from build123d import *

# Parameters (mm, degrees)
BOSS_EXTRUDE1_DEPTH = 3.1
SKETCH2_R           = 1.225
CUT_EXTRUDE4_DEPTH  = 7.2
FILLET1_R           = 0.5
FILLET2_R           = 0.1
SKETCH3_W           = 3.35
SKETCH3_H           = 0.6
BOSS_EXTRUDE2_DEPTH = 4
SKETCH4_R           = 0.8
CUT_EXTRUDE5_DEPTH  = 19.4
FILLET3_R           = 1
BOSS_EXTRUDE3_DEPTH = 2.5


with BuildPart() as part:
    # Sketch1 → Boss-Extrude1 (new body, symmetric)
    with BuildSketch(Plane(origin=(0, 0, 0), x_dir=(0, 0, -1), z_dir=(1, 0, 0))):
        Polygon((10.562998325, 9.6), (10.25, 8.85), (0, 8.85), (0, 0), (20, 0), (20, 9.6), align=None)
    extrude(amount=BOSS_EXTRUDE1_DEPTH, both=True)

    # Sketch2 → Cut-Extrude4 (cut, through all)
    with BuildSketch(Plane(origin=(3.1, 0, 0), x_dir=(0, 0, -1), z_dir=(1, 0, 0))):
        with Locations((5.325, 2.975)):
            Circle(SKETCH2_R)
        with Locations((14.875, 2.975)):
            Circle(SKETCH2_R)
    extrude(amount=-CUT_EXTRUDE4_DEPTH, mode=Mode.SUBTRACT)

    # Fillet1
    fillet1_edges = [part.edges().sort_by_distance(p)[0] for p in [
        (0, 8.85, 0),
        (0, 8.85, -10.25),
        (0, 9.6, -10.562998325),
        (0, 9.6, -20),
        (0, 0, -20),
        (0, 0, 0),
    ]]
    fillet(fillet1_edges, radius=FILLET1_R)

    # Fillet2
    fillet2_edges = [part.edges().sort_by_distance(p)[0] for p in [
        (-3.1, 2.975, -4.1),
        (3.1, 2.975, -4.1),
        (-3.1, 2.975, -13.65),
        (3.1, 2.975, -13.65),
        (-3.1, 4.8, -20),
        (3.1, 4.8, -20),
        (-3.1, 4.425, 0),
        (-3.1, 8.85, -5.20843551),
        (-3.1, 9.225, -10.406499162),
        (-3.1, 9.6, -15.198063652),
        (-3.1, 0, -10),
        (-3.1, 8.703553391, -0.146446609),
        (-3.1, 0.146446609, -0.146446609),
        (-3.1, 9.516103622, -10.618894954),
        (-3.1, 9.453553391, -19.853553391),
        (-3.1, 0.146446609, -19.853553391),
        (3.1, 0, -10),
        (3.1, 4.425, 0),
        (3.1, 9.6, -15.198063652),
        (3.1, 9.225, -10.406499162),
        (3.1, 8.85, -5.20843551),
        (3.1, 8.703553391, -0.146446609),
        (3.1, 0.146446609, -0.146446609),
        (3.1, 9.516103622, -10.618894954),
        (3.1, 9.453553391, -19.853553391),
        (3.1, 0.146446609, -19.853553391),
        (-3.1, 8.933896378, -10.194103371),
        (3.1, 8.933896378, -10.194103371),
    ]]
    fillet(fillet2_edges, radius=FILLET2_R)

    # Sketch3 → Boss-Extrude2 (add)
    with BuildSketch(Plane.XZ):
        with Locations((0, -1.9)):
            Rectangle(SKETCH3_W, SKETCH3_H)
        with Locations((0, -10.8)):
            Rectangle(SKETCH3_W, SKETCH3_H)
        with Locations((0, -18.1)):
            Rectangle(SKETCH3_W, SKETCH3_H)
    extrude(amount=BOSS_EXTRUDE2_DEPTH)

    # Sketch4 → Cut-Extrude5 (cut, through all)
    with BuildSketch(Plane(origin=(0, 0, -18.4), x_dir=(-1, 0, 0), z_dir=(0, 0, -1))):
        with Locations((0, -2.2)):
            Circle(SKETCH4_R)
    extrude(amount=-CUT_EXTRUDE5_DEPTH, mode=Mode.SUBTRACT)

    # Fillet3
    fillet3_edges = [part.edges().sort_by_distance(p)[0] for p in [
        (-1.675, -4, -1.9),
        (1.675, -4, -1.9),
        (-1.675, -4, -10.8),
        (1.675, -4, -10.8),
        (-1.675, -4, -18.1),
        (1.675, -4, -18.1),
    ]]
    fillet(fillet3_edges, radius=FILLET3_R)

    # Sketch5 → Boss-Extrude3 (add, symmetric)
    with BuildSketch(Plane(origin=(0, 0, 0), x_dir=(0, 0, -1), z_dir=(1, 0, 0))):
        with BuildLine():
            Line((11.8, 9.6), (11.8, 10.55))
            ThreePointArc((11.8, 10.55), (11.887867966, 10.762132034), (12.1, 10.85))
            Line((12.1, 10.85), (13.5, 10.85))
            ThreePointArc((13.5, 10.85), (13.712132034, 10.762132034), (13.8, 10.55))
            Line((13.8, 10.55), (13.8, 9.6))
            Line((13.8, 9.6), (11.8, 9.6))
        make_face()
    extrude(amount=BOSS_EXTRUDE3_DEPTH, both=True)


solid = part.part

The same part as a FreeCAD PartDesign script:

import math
import FreeCAD as App
import Part
import Sketcher
from FreeCAD import Vector


def edges_at(feature, points):
    """Names of the edges that pass closest to the given points."""
    edges = feature.Shape.Edges
    near = lambda p: min(range(len(edges)), key=lambda i: edges[i].distToShape(Part.Vertex(*p))[0])
    return sorted({f"Edge{near(p) + 1}" for p in points})


def add_polygon(sketch, points):
    """Adds a closed chain of lines whose ends are joined by coincident constraints."""
    first, n = sketch.GeometryCount, len(points)
    for a, b in zip(points, points[1:] + points[:1]):
        sketch.addGeometry(Part.LineSegment(App.Vector(*a, 0), App.Vector(*b, 0)), False)
    for i in range(n):
        sketch.addConstraint(Sketcher.Constraint("Coincident", first + i, 2, first + (i + 1) % n, 1))

doc = App.newDocument("Part")
params = doc.addObject("Spreadsheet::Sheet", "Params")
for row, (alias, value) in enumerate([
    ("sketch1_height", "20 mm"),
    ("sketch1_width", "9.6 mm"),
    ("sketch1_width2", "8.85 mm"),
    ("sketch1_height2", "10.25 mm"),
    ("pad1_length", "6.2 mm"),
    ("sketch2_diameter", "2.45 mm"),
    ("fillet_radius", "0.5 mm"),
    ("fillet2_radius", "0.1 mm"),
    ("sketch3_height", "0.6 mm"),
    ("sketch3_width", "3.35 mm"),
    ("pad2_length", "4 mm"),
    ("sketch4_diameter", "1.6 mm"),
    ("fillet3_radius", "1 mm"),
    ("sketch5_radius", "0.3 mm"),
    ("sketch5_height", "2 mm"),
    ("sketch5_width", "0.95 mm"),
    ("pad3_length", "5 mm"),
], start=1):
    params.set(f"A{row}", alias)
    params.set(f"B{row}", "=" + value)
    params.setAlias(f"B{row}", alias)

body = doc.addObject("PartDesign::Body", "Body")

# Sketch on YZ plane
sketch1 = body.newObject("Sketcher::SketchObject", "Sketch")
sketch1.AttachmentSupport = (doc.getObject("YZ_Plane"), [""])
sketch1.MapMode = "FlatFace"
add_polygon(sketch1, [(9.6, -10.6), (8.8, -10.2), (8.8, 0), (0, 0), (0, -20), (9.6, -20)])  # lines 0-5
sketch1.addConstraint(Sketcher.Constraint("Vertical", 1))
sketch1.addConstraint(Sketcher.Constraint("Horizontal", 2))
sketch1.addConstraint(Sketcher.Constraint("Vertical", 3))
sketch1.addConstraint(Sketcher.Constraint("Horizontal", 4))
sketch1.addConstraint(Sketcher.Constraint("Vertical", 5))
sketch1.addConstraint(Sketcher.Constraint("Coincident", 2, 2, -1, 1))
sketch1.addConstraint(Sketcher.Constraint("DistanceY", 3, 2, 3, 1, 20.0))
sketch1.addConstraint(Sketcher.Constraint("DistanceX", 4, 1, 4, 2, 9.6))
sketch1.addConstraint(Sketcher.Constraint("DistanceX", 2, 2, 2, 1, 8.85))
sketch1.addConstraint(Sketcher.Constraint("DistanceY", 1, 1, 1, 2, 10.25))
sketch1.addConstraint(Sketcher.Constraint("DistanceY", 5, 1, 5, 2, 9.437002))
sketch1.setExpression("Constraints[12]", "Params.sketch1_height")
sketch1.setExpression("Constraints[13]", "Params.sketch1_width")
sketch1.setExpression("Constraints[14]", "Params.sketch1_width2")
sketch1.setExpression("Constraints[15]", "Params.sketch1_height2")
pad1 = body.newObject("PartDesign::Pad", "Pad")
pad1.Profile = sketch1
pad1.setExpression("Length", "Params.pad1_length")
pad1.Midplane = True

# Sketch on YZ plane
sketch2 = body.newObject("Sketcher::SketchObject", "Sketch001")
sketch2.AttachmentSupport = (doc.getObject("YZ_Plane"), [""])
sketch2.MapMode = "FlatFace"
sketch2.AttachmentOffset = App.Placement(Vector(0, 0, 3.1), App.Rotation())
sketch2.addGeometry(Part.Circle(Vector(3, -5.3, 0), Vector(0, 0, 1), 1.2), False)
sketch2.addGeometry(Part.Circle(Vector(3, -14.9, 0), Vector(0, 0, 1), 1.2), False)
sketch2.addConstraint(Sketcher.Constraint("Equal", 0, 1))
sketch2.addConstraint(Sketcher.Constraint("Vertical", 0, 3, 1, 3))
sketch2.addConstraint(Sketcher.Constraint("Diameter", 0, 2.45))
sketch2.addConstraint(Sketcher.Constraint("DistanceY", 1, 3, 0, 3, 9.55))
sketch2.addConstraint(Sketcher.Constraint("DistanceX", -1, 1, 0, 3, 2.975))
sketch2.addConstraint(Sketcher.Constraint("DistanceY", 0, 3, -1, 1, 5.325))
sketch2.setExpression("Constraints[2]", "Params.sketch2_diameter")
pocket1 = body.newObject("PartDesign::Pocket", "Pocket")
pocket1.Profile = sketch2
pocket1.Type = "ThroughAll"
doc.recompute()

fillet = body.newObject("PartDesign::Fillet", "Fillet")
fillet.Base = (pocket1, edges_at(pocket1, [
    (0, 8.85, 0),
    (0, 8.85, -10.25),
    (0, 9.6, -10.563),
    (0, 9.6, -20),
    (0, 0, -20),
    (0, 0, 0),
]))
fillet.setExpression("Radius", "Params.fillet_radius")
doc.recompute()

fillet2 = body.newObject("PartDesign::Fillet", "Fillet001")
fillet2.Base = (fillet, edges_at(fillet, [
    (-3.1, 2.975, -4.1),
    (3.1, 2.975, -4.1),
    (-3.1, 2.975, -13.65),
    (3.1, 2.975, -13.65),
    (-3.1, 4.8, -20),
    (3.1, 4.8, -20),
    (-3.1, 4.425, 0),
    (-3.1, 8.85, -5.208),
    (-3.1, 9.225, -10.406),
    (-3.1, 9.6, -15.198),
    (-3.1, 0, -10),
    (-3.1, 8.704, -0.146),
    (-3.1, 0.146, -0.146),
    (-3.1, 9.516, -10.619),
    (-3.1, 9.454, -19.854),
    (-3.1, 0.146, -19.854),
    (3.1, 0, -10),
    (3.1, 4.425, 0),
    (3.1, 9.6, -15.198),
    (3.1, 9.225, -10.406),
    (3.1, 8.85, -5.208),
    (3.1, 8.704, -0.146),
    (3.1, 0.146, -0.146),
    (3.1, 9.516, -10.619),
    (3.1, 9.454, -19.854),
    (3.1, 0.146, -19.854),
    (-3.1, 8.934, -10.194),
    (3.1, 8.934, -10.194),
]))
fillet2.setExpression("Radius", "Params.fillet2_radius")

# Sketch on XZ plane
sketch3 = body.newObject("Sketcher::SketchObject", "Sketch002")
sketch3.AttachmentSupport = (doc.getObject("XZ_Plane"), [""])
sketch3.MapMode = "FlatFace"
add_polygon(sketch3, [(-1.7, -1.6), (-1.7, -2.2), (1.7, -2.2), (1.7, -1.6)])  # lines 0-3
add_polygon(sketch3, [(-1.7, -10.5), (-1.7, -11.1), (1.7, -11.1), (1.7, -10.5)])  # lines 4-7
add_polygon(sketch3, [(-1.7, -17.8), (-1.7, -18.4), (1.7, -18.4), (1.7, -17.8)])  # lines 8-11
sketch3.addConstraint(Sketcher.Constraint("Vertical", 0))
sketch3.addConstraint(Sketcher.Constraint("Horizontal", 1))
sketch3.addConstraint(Sketcher.Constraint("Vertical", 2))
sketch3.addConstraint(Sketcher.Constraint("Horizontal", 3))
sketch3.addConstraint(Sketcher.Constraint("Vertical", 4))
sketch3.addConstraint(Sketcher.Constraint("Horizontal", 5))
sketch3.addConstraint(Sketcher.Constraint("Vertical", 6))
sketch3.addConstraint(Sketcher.Constraint("Horizontal", 7))
sketch3.addConstraint(Sketcher.Constraint("Vertical", 8))
sketch3.addConstraint(Sketcher.Constraint("Horizontal", 9))
sketch3.addConstraint(Sketcher.Constraint("Vertical", 10))
sketch3.addConstraint(Sketcher.Constraint("Horizontal", 11))
sketch3.addConstraint(Sketcher.Constraint("Vertical", 3, 2, 4, 2))
sketch3.addConstraint(Sketcher.Constraint("Vertical", 2, 2, 5, 2))
sketch3.addConstraint(Sketcher.Constraint("Vertical", 7, 2, 8, 2))
sketch3.addConstraint(Sketcher.Constraint("Vertical", 6, 2, 9, 2))
sketch3.addConstraint(Sketcher.Constraint("Equal", 2, 4))
sketch3.addConstraint(Sketcher.Constraint("Equal", 6, 8))
sketch3.addConstraint(Sketcher.Constraint("DistanceY", 0, 2, 0, 1, 0.6))
sketch3.addConstraint(Sketcher.Constraint("DistanceX", 1, 1, 1, 2, 3.35))
sketch3.addConstraint(Sketcher.Constraint("DistanceY", 0, 2, -1, 1, 2.2))
sketch3.addConstraint(Sketcher.Constraint("DistanceY", 4, 2, -1, 1, 11.1))
sketch3.addConstraint(Sketcher.Constraint("DistanceY", 8, 2, -1, 1, 18.4))
sketch3.addConstraint(Sketcher.Constraint("DistanceX", 0, 2, -1, 1, 1.675))
sketch3.setExpression("Constraints[30]", "Params.sketch3_height")
sketch3.setExpression("Constraints[31]", "Params.sketch3_width")
pad2 = body.newObject("PartDesign::Pad", "Pad001")
pad2.Profile = sketch3
pad2.setExpression("Length", "Params.pad2_length")

# Sketch on XY plane
sketch4 = body.newObject("Sketcher::SketchObject", "Sketch003")
sketch4.AttachmentSupport = (doc.getObject("XY_Plane"), [""])
sketch4.MapMode = "FlatFace"
sketch4.AttachmentOffset = App.Placement(Vector(0, 0, -18.4), App.Rotation())
sketch4.addGeometry(Part.Circle(Vector(0, -2.2, 0), Vector(0, 0, 1), 0.8), False)
sketch4.addConstraint(Sketcher.Constraint("PointOnObject", 0, 3, -2))
sketch4.addConstraint(Sketcher.Constraint("Diameter", 0, 1.6))
sketch4.addConstraint(Sketcher.Constraint("DistanceY", 0, 3, -1, 1, 2.2))
sketch4.setExpression("Constraints[1]", "Params.sketch4_diameter")
pocket2 = body.newObject("PartDesign::Pocket", "Pocket001")
pocket2.Profile = sketch4
pocket2.Type = "ThroughAll"
pocket2.Reversed = True
doc.recompute()

fillet3 = body.newObject("PartDesign::Fillet", "Fillet002")
fillet3.Base = (pocket2, edges_at(pocket2, [
    (-1.675, -4, -1.9),
    (1.675, -4, -1.9),
    (-1.675, -4, -10.8),
    (1.675, -4, -10.8),
    (-1.675, -4, -18.1),
    (1.675, -4, -18.1),
]))
fillet3.setExpression("Radius", "Params.fillet3_radius")

# Sketch on YZ plane
sketch5 = body.newObject("Sketcher::SketchObject", "Sketch004")
sketch5.AttachmentSupport = (doc.getObject("YZ_Plane"), [""])
sketch5.MapMode = "FlatFace"
sketch5.addGeometry(Part.LineSegment(Vector(10.55, -11.8, 0), Vector(9.6, -11.8, 0)), False)
sketch5.addGeometry(Part.LineSegment(Vector(9.6, -11.8, 0), Vector(9.6, -13.8, 0)), False)
sketch5.addGeometry(Part.LineSegment(Vector(9.6, -13.8, 0), Vector(10.55, -13.8, 0)), False)
sketch5.addGeometry(Part.ArcOfCircle(Part.Circle(Vector(10.55, -13.5, 0), Vector(0, 0, 1), 0.3), math.radians(-90), math.radians(0)), False)
sketch5.addGeometry(Part.LineSegment(Vector(10.85, -13.5, 0), Vector(10.85, -12.1, 0)), False)
sketch5.addGeometry(Part.ArcOfCircle(Part.Circle(Vector(10.55, -12.1, 0), Vector(0, 0, 1), 0.3), math.radians(0), math.radians(90)), False)
sketch5.addConstraint(Sketcher.Constraint("Coincident", 0, 2, 1, 1))
sketch5.addConstraint(Sketcher.Constraint("Coincident", 1, 2, 2, 1))
sketch5.addConstraint(Sketcher.Constraint("Tangent", 2, 2, 3, 1))
sketch5.addConstraint(Sketcher.Constraint("Tangent", 3, 2, 4, 1))
sketch5.addConstraint(Sketcher.Constraint("Tangent", 4, 2, 5, 1))
sketch5.addConstraint(Sketcher.Constraint("Tangent", 5, 2, 0, 1))
sketch5.addConstraint(Sketcher.Constraint("Horizontal", 0))
sketch5.addConstraint(Sketcher.Constraint("Vertical", 1))
sketch5.addConstraint(Sketcher.Constraint("Horizontal", 2))
sketch5.addConstraint(Sketcher.Constraint("Vertical", 4))
sketch5.addConstraint(Sketcher.Constraint("Equal", 3, 5))
sketch5.addConstraint(Sketcher.Constraint("Radius", 3, 0.3))
sketch5.addConstraint(Sketcher.Constraint("DistanceY", 1, 2, 1, 1, 2.0))
sketch5.addConstraint(Sketcher.Constraint("DistanceX", 0, 2, 0, 1, 0.95))
sketch5.addConstraint(Sketcher.Constraint("DistanceY", 3, 3, -1, 1, 13.5))
sketch5.addConstraint(Sketcher.Constraint("DistanceX", -1, 1, 0, 2, 9.6))
sketch5.setExpression("Constraints[11]", "Params.sketch5_radius")
sketch5.setExpression("Constraints[12]", "Params.sketch5_height")
sketch5.setExpression("Constraints[13]", "Params.sketch5_width")
pad3 = body.newObject("PartDesign::Pad", "Pad002")
pad3.Profile = sketch5
pad3.setExpression("Length", "Params.pad3_length")
pad3.Midplane = True

doc.recompute()
